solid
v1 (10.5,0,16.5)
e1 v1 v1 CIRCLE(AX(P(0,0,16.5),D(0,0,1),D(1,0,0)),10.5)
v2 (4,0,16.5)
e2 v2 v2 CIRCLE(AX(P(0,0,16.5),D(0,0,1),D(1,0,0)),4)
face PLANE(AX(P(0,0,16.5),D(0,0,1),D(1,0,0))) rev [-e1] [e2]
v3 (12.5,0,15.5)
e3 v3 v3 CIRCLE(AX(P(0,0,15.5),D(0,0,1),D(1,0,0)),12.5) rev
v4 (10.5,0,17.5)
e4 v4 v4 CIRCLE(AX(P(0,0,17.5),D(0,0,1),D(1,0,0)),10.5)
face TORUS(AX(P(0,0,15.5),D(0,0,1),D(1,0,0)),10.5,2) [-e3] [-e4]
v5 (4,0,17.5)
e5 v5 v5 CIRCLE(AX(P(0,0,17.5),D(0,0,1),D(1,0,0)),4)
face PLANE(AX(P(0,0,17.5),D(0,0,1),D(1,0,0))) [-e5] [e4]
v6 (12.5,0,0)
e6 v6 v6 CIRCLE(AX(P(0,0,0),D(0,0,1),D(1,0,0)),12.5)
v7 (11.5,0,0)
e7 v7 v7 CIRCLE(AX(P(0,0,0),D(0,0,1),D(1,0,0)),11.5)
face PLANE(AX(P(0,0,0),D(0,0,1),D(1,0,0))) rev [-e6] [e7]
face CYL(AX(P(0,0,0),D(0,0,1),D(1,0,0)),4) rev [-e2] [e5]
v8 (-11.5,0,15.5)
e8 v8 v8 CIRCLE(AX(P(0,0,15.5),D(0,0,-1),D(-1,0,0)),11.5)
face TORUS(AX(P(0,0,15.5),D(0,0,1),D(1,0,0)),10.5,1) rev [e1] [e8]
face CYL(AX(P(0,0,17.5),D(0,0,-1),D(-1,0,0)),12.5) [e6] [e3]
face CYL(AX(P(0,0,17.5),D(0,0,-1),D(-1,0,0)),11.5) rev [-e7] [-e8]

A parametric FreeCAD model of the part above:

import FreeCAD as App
import Part
import Sketcher


def edges_at(feature, points):
    """Names of the edges that pass closest to the given points."""
    edges = feature.Shape.Edges
    near = lambda p: min(range(len(edges)), key=lambda i: edges[i].distToShape(Part.Vertex(*p))[0])
    return sorted({f"Edge{near(p) + 1}" for p in points})


def faces_at(feature, points):
    """Names of the faces that lie closest to the given points."""
    faces = feature.Shape.Faces
    near = lambda p: min(range(len(faces)), key=lambda i: faces[i].distToShape(Part.Vertex(*p))[0])
    return sorted({f"Face{near(p) + 1}" for p in points})

doc = App.newDocument("Part")
body = doc.addObject("PartDesign::Body", "Body")

# Sketch on XY plane
sketch1 = body.newObject("Sketcher::SketchObject", "Sketch")
sketch1.AttachmentSupport = (doc.getObject("XY_Plane"), [""])
sketch1.MapMode = "FlatFace"
sketch1.addGeometry(Part.Circle(App.Vector(0, 0, 0), App.Vector(0, 0, 1), 12), False)
sketch1.addConstraint([
    Sketcher.Constraint("Coincident", 0, 3, -1, 1),
    Sketcher.Constraint("Diameter", 0, 25.0),
])
pad1 = body.newObject("PartDesign::Pad", "Pad")
pad1.Profile = sketch1
pad1.Length = 17.5
doc.recompute()

fillet = body.newObject("PartDesign::Fillet", "Fillet")
fillet.Base = (pad1, edges_at(pad1, [(-12.5, 0, 17.5)]))
fillet.Radius = 2
doc.recompute()

thickness = body.newObject("PartDesign::Thickness", "Thickness")
thickness.Base = (fillet, faces_at(fillet, [(0, 0, 0)]))
thickness.Value = 1
thickness.Reversed = True
thickness.Join = "Intersection"

# Sketch on XY plane
sketch2 = body.newObject("Sketcher::SketchObject", "Sketch001")
sketch2.AttachmentSupport = (doc.getObject("XY_Plane"), [""])
sketch2.MapMode = "FlatFace"
sketch2.AttachmentOffset = App.Placement(App.Vector(0, 0, 17.5), App.Rotation())
sketch2.addGeometry(Part.Circle(App.Vector(0, 0, 0), App.Vector(0, 0, 1), 4), False)
sketch2.addConstraint([
    Sketcher.Constraint("Coincident", 0, 3, -1, 1),
    Sketcher.Constraint("Diameter", 0, 8.0),
])
pocket1 = body.newObject("PartDesign::Pocket", "Pocket")
pocket1.Profile = sketch2
pocket1.Type = "ThroughAll"

doc.recompute()
